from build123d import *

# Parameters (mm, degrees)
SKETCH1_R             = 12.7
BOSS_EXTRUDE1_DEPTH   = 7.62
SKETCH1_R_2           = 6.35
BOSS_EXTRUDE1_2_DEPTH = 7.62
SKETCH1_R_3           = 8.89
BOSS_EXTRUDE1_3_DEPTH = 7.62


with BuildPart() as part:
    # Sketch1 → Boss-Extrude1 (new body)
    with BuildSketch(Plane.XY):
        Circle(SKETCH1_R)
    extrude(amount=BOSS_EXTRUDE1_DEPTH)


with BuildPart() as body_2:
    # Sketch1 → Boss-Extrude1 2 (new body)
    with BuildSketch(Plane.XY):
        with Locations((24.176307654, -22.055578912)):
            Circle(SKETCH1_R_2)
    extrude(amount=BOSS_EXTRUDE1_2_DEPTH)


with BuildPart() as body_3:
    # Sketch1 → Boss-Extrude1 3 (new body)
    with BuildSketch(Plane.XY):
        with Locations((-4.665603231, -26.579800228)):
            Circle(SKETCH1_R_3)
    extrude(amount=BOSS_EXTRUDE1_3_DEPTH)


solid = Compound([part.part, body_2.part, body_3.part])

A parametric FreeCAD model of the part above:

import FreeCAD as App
import Part
import Sketcher

V = App.Vector
Q = App.Units.Quantity

doc = App.newDocument("Part")
body = doc.addObject("PartDesign::Body", "Body")

# Sketch on XY plane
sketch1 = body.newObject("Sketcher::SketchObject", "Sketch")
sketch1.AttachmentSupport = (doc.getObject("XY_Plane"), [""])
sketch1.MapMode = "FlatFace"
sketch1.addGeometry(Part.Circle(V(0, 0, 0), V(0, 0, 1), 12.7), False)
sketch1.addConstraint(Sketcher.Constraint("Coincident", 0, 3, -1, 1))
sketch1.addConstraint(Sketcher.Constraint("Diameter", 0, Q("1 in")))
pad1 = body.newObject("PartDesign::Pad", "Pad")
pad1.Profile = sketch1
pad1.Length = Q("0.3 in")
body2 = doc.addObject("PartDesign::Body", "Body001")

# Sketch on XY plane
sketch2 = body2.newObject("Sketcher::SketchObject", "Sketch001")
sketch2.AttachmentSupport = (doc.getObject("XY_Plane001"), [""])
sketch2.MapMode = "FlatFace"
sketch2.addGeometry(Part.Circle(V(24.176308, -22.055579, 0), V(0, 0, 1), 6.35), False)
sketch2.addConstraint(Sketcher.Constraint("Diameter", 0, Q("0.5 in")))
sketch2.addConstraint(Sketcher.Constraint("DistanceY", 0, 3, -1, 1, Q("22.055579 mm")))
sketch2.addConstraint(Sketcher.Constraint("DistanceX", -1, 1, 0, 3, Q("24.176308 mm")))
pad2 = body2.newObject("PartDesign::Pad", "Pad001")
pad2.Profile = sketch2
pad2.Length = Q("0.3 in")
body3 = doc.addObject("PartDesign::Body", "Body002")

# Sketch on XY plane
sketch3 = body3.newObject("Sketcher::SketchObject", "Sketch002")
sketch3.AttachmentSupport = (doc.getObject("XY_Plane002"), [""])
sketch3.MapMode = "FlatFace"
sketch3.addGeometry(Part.Circle(V(-4.665603, -26.5798, 0), V(0, 0, 1), 8.89), False)
sketch3.addConstraint(Sketcher.Constraint("Diameter", 0, Q("0.7 in")))
sketch3.addConstraint(Sketcher.Constraint("DistanceY", 0, 3, -1, 1, Q("26.5798 mm")))
sketch3.addConstraint(Sketcher.Constraint("DistanceX", 0, 3, -1, 1, Q("4.665603 mm")))
pad3 = body3.newObject("PartDesign::Pad", "Pad002")
pad3.Profile = sketch3
pad3.Length = Q("0.3 in")

doc.recompute()
